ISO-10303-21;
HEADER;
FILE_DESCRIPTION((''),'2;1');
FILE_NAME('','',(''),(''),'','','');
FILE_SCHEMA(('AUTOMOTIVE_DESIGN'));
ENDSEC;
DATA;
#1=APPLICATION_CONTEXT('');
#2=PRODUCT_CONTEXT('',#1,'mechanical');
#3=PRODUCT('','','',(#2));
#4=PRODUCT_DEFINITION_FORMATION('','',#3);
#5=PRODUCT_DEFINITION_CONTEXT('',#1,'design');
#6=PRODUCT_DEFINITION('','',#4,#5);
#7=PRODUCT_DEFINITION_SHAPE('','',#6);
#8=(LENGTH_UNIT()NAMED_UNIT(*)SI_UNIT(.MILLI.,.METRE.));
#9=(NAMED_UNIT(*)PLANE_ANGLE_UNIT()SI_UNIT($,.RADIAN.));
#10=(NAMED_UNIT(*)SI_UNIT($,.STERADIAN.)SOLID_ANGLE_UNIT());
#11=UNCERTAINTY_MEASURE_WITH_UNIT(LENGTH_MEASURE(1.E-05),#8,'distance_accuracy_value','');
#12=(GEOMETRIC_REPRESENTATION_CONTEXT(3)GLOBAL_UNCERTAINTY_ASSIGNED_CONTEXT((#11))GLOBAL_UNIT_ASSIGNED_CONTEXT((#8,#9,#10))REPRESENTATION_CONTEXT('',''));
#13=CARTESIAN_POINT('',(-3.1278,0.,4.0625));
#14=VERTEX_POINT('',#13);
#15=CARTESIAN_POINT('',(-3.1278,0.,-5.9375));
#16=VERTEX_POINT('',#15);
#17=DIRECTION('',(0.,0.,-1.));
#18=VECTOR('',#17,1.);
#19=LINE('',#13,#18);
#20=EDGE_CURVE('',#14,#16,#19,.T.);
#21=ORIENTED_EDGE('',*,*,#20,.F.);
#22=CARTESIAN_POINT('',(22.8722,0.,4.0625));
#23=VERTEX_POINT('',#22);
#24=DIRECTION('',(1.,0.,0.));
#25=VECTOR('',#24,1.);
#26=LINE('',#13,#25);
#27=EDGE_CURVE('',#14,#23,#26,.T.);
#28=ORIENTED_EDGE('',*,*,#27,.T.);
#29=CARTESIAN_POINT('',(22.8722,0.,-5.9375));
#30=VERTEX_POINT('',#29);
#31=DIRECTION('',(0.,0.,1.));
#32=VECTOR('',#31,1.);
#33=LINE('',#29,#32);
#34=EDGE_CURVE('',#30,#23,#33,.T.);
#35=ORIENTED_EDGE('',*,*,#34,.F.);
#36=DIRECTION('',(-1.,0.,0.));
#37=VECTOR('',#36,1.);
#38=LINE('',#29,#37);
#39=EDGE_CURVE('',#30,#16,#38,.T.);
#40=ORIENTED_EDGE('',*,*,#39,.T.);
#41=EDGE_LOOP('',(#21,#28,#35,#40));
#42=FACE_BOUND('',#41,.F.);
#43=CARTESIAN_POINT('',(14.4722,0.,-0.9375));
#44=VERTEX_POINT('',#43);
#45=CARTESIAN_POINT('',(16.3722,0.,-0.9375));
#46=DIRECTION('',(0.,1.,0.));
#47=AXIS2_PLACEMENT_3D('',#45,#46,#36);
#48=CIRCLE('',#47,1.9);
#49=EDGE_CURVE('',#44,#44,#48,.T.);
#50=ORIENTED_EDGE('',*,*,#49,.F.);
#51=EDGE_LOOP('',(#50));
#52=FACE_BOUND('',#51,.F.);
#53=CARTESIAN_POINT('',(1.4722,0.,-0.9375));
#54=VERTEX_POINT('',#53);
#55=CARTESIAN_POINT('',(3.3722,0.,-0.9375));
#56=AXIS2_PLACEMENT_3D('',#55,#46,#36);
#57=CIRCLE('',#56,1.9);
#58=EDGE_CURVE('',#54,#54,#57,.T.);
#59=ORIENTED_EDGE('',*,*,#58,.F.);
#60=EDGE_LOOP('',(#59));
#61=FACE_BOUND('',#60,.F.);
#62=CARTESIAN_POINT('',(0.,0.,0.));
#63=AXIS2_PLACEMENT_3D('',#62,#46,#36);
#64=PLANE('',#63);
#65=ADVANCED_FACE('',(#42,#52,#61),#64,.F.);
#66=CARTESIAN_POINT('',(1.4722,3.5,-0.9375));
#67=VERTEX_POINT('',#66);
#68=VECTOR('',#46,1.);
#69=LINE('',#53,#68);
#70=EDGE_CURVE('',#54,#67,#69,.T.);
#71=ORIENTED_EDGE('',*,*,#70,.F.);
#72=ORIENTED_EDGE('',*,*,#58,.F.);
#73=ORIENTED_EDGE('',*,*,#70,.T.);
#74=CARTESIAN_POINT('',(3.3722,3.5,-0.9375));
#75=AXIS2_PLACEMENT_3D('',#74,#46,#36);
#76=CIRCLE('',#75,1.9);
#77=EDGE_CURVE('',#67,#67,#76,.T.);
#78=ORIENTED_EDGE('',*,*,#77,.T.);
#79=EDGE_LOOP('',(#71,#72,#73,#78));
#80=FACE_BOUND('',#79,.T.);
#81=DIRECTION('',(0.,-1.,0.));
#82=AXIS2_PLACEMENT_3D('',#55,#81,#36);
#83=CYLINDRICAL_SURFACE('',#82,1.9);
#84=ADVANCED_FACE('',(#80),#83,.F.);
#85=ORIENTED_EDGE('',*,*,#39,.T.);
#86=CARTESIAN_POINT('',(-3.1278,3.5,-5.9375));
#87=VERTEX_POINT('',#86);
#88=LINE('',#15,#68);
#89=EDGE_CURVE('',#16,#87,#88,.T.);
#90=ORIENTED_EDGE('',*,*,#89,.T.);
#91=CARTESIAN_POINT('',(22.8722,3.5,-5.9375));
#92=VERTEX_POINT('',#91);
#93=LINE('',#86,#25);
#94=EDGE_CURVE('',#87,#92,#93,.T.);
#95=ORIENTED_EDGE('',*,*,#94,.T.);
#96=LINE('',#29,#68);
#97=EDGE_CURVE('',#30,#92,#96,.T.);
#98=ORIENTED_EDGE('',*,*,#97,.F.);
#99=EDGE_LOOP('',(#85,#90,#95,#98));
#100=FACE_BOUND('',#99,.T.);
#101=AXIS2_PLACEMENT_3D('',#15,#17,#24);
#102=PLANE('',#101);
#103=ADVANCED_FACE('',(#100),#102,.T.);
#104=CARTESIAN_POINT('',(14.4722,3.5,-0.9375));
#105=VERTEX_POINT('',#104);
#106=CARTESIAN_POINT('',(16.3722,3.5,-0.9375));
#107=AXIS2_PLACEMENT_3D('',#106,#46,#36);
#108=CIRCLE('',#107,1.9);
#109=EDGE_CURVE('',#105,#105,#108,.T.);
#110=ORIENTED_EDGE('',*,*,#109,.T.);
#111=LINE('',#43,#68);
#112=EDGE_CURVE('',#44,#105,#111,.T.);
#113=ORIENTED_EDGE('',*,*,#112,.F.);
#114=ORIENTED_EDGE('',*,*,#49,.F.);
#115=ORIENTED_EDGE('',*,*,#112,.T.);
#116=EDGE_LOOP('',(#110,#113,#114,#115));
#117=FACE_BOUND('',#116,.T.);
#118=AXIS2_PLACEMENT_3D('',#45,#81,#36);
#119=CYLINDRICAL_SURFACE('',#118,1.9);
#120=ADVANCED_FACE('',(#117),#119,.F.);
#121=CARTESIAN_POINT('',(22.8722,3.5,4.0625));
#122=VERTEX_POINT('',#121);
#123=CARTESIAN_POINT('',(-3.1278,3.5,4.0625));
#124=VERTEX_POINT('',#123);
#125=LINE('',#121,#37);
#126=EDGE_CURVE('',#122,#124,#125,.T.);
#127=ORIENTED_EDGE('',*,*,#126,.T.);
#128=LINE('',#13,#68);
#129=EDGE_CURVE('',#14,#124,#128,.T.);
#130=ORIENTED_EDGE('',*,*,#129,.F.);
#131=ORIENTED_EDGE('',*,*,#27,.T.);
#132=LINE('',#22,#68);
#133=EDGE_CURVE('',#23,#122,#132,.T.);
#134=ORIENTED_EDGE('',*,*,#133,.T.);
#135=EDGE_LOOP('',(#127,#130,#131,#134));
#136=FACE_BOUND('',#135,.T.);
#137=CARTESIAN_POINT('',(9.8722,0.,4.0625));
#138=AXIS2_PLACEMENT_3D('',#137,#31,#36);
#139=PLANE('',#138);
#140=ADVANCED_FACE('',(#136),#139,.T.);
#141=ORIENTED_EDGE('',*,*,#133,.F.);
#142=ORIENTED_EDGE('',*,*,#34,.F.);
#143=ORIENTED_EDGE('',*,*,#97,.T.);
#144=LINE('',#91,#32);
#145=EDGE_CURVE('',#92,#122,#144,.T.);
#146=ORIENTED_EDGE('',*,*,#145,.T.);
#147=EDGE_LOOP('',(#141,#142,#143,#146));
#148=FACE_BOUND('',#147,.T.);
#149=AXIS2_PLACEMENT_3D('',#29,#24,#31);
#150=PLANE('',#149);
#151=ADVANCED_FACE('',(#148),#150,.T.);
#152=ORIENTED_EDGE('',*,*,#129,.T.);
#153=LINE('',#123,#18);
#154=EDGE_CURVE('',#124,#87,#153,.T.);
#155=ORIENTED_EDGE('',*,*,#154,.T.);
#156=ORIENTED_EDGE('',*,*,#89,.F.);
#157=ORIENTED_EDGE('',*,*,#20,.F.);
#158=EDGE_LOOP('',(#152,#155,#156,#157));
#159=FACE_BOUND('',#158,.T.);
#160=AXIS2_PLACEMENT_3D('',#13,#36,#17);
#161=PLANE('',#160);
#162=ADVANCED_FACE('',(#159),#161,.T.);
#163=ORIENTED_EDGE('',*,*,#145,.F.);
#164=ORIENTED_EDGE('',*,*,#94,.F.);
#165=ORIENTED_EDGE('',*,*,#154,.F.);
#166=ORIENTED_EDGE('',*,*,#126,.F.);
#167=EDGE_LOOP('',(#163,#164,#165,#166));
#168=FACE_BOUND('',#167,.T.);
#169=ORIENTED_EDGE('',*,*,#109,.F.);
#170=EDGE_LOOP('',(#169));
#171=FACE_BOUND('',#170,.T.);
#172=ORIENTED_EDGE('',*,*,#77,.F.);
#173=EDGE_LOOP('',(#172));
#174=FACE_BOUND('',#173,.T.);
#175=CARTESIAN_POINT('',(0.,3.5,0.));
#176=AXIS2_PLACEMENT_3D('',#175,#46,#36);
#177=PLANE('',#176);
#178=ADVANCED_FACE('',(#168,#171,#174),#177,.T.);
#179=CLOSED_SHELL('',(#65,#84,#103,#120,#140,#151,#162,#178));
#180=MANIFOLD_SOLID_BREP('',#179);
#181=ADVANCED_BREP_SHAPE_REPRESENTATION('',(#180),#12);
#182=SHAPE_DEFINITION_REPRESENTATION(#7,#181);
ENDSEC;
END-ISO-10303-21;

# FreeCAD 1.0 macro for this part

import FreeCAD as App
import Part
import Sketcher
from FreeCAD import Vector

doc = App.newDocument("Part")
body = doc.addObject("PartDesign::Body", "Body")

# Sketch on XZ plane
sketch1 = body.newObject("Sketcher::SketchObject", "Sketch")
sketch1.AttachmentSupport = (doc.getObject("XZ_Plane"), [""])
sketch1.MapMode = "FlatFace"
sketch1.addGeometry([
    Part.LineSegment(Vector(-3.1, -5.9, 0), Vector(-3.1, 4.1, 0)),  # 0
    Part.LineSegment(Vector(-3.1, 4.1, 0), Vector(22.9, 4.1, 0)),  # 1
    Part.LineSegment(Vector(22.9, 4.1, 0), Vector(22.9, -5.9, 0)),  # 2
    Part.LineSegment(Vector(22.9, -5.9, 0), Vector(-3.1, -5.9, 0)),  # 3
    Part.Circle(Vector(3.4, -0.9, 0), Vector(0, 0, 1), 1.9),  # 4
    Part.Circle(Vector(16.4, -0.9, 0), Vector(0, 0, 1), 1.9),  # 5
], False)
sketch1.addConstraint([
    Sketcher.Constraint("Coincident", 0, 2, 1, 1),
    Sketcher.Constraint("Coincident", 1, 2, 2, 1),
    Sketcher.Constraint("Coincident", 2, 2, 3, 1),
    Sketcher.Constraint("Coincident", 3, 2, 0, 1),
    Sketcher.Constraint("Vertical", 0),
    Sketcher.Constraint("Horizontal", 1),
    Sketcher.Constraint("Vertical", 2),
    Sketcher.Constraint("Horizontal", 3),
    Sketcher.Constraint("Equal", 4, 5),
    Sketcher.Constraint("Horizontal", 4, 3, 5, 3),
    Sketcher.Constraint("Diameter", 4, 3.8),
    Sketcher.Constraint("DistanceX", 1, 1, 1, 2, 26.0),
    Sketcher.Constraint("DistanceY", 0, 1, 0, 2, 10.0),
    Sketcher.Constraint("DistanceX", 4, 3, 5, 3, 13.0),
    Sketcher.Constraint("DistanceX", 0, 2, 4, 3, 6.5),
    Sketcher.Constraint("DistanceY", 4, 3, 0, 2, 5.0),
    Sketcher.Constraint("DistanceX", -1, 1, 4, 3, 3.3722),
    Sketcher.Constraint("DistanceY", 4, 3, -1, 1, 0.9375),
])
pad1 = body.newObject("PartDesign::Pad", "Pad")
pad1.Profile = sketch1
pad1.Length = 3.5
pad1.Reversed = True

doc.recompute()
